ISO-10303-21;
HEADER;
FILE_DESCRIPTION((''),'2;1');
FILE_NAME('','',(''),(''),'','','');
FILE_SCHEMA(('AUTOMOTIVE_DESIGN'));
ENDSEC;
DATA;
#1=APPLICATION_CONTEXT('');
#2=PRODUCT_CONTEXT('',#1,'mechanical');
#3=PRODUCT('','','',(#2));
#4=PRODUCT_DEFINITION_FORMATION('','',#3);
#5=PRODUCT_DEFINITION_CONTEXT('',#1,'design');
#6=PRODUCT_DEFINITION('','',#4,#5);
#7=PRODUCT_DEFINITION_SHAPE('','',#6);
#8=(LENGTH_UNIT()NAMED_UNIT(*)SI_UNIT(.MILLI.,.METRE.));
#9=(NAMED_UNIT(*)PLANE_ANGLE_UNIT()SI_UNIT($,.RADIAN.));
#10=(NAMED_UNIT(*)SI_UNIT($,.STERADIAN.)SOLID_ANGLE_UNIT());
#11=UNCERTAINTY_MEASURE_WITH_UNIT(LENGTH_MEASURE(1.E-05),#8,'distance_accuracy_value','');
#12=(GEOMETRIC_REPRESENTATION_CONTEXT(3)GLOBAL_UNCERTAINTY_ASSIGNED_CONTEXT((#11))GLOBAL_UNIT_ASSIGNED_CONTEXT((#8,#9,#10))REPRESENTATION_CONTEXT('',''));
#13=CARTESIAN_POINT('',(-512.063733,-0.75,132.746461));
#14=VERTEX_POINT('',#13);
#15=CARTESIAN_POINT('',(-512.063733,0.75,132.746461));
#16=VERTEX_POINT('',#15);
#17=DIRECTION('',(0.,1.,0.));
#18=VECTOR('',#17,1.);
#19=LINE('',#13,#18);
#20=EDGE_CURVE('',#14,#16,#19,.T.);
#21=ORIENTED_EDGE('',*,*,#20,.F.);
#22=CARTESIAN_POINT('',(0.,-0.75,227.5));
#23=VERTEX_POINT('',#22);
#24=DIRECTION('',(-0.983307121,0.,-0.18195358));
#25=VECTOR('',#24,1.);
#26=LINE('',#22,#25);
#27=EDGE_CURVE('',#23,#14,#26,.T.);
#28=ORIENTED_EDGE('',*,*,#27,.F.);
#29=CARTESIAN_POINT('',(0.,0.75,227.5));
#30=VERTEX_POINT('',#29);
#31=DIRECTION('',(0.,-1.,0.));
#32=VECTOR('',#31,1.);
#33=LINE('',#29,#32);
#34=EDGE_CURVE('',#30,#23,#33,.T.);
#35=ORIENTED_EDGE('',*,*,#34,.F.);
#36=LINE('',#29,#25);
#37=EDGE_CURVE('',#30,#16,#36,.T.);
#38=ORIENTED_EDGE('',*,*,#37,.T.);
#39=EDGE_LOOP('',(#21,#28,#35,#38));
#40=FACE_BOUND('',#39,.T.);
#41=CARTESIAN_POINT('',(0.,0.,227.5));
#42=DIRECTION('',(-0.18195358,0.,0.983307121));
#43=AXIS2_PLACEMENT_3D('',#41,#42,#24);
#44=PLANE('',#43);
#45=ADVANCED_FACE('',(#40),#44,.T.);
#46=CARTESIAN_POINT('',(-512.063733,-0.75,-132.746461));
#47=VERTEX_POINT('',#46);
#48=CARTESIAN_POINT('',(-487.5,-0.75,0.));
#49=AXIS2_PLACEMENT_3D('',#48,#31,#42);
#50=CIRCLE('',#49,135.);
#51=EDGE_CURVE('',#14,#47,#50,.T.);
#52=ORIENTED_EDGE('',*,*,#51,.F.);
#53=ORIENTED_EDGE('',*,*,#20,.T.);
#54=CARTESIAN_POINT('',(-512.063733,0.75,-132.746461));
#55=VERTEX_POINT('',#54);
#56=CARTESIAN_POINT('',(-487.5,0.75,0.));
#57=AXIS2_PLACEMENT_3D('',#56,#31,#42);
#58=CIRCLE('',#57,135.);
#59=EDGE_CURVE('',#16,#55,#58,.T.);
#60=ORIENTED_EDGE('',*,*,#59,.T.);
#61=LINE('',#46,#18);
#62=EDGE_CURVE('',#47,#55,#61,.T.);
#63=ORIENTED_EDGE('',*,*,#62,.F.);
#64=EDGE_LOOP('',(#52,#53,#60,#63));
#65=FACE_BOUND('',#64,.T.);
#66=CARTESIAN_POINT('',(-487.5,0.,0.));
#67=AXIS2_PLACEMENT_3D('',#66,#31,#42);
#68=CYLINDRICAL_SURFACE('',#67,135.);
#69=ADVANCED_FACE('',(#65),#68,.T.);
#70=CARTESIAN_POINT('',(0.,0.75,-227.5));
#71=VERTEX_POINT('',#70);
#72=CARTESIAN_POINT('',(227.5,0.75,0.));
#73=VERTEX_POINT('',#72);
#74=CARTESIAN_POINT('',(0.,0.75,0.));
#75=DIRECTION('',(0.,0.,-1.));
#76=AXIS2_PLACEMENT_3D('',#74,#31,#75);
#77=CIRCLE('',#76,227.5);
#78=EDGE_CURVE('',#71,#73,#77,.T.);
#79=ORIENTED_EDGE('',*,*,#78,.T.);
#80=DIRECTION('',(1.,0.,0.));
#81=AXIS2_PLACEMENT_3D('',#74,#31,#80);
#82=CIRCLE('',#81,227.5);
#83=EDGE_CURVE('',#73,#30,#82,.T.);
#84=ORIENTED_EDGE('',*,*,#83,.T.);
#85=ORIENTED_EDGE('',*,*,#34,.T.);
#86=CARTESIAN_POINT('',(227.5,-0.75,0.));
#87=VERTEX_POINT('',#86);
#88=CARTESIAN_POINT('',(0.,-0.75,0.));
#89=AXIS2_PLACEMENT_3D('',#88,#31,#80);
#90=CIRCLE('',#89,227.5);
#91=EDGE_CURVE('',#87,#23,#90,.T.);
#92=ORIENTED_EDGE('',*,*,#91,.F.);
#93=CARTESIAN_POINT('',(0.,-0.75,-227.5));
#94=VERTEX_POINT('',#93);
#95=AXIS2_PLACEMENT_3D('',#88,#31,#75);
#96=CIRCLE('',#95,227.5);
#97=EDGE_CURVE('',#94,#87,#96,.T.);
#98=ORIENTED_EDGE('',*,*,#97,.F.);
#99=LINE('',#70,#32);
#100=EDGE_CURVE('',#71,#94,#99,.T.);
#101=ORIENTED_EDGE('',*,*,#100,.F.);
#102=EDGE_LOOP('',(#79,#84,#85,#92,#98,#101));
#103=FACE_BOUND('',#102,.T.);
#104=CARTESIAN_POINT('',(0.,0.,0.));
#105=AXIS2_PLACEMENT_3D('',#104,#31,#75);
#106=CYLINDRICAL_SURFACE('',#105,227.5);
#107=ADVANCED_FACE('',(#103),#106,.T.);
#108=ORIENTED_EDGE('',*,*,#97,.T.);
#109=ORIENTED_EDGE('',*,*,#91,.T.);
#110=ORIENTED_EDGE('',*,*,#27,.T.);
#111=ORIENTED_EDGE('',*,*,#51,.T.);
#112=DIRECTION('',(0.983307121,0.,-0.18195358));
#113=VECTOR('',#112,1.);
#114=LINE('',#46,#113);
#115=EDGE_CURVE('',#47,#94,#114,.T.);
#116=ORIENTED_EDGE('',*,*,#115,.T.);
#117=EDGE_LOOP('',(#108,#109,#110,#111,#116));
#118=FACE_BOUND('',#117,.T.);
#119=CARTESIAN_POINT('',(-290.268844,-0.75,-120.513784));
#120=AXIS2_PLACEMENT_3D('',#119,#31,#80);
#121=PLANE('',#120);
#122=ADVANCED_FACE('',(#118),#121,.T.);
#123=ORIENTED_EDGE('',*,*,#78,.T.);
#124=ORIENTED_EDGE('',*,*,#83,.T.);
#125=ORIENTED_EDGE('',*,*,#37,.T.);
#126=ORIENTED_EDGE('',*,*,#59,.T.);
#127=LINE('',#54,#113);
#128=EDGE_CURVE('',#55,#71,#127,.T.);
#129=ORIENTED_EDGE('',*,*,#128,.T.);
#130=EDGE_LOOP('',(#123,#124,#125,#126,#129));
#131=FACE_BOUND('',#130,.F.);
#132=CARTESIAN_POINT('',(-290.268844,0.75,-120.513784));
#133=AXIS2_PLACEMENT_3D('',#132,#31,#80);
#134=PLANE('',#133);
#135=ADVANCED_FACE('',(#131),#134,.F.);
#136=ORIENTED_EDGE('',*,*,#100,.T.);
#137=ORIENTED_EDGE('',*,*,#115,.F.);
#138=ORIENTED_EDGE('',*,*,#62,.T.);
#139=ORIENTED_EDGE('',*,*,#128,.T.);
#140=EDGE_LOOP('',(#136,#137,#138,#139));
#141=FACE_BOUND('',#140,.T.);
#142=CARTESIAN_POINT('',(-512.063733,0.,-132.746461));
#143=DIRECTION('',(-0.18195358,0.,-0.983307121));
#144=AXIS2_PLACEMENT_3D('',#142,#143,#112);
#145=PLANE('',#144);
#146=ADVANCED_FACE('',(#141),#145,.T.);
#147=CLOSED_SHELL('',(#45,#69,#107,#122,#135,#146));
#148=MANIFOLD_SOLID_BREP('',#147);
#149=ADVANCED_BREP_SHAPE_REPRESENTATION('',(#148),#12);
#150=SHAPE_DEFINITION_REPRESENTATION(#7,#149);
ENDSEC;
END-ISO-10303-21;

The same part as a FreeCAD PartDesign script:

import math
import FreeCAD as App
import Part
import Sketcher

V = App.Vector
Q = App.Units.Quantity

doc = App.newDocument("Part")
body = doc.addObject("PartDesign::Body", "Body")

# Sketch on XZ plane
sketch1 = body.newObject("Sketcher::SketchObject", "Sketch")
sketch1.AttachmentSupport = (doc.getObject("XZ_Plane"), [""])
sketch1.MapMode = "FlatFace"
sketch1.addGeometry([
    Part.LineSegment(V(-512.063733, -132.746461, 0), V(0, -227.5, 0)),  # 0
    Part.ArcOfCircle(Part.Circle(V(0, 0, 0), V(0, 0, 1), 227.5), math.radians(-90), math.radians(0)),  # 1
    Part.ArcOfCircle(Part.Circle(V(0, 0, 0), V(0, 0, 1), 227.5), math.radians(0), math.radians(90)),  # 2
    Part.LineSegment(V(0, 227.5, 0), V(-512.063733, 132.746461, 0)),  # 3
    Part.ArcOfCircle(Part.Circle(V(-487.5, 0, 0), V(0, 0, 1), 135), math.radians(100.483571), math.radians(259.516429)),  # 4
], False)
sketch1.addConstraint([
    Sketcher.Constraint("Coincident", 0, 2, 1, 1),
    Sketcher.Constraint("Tangent", 1, 2, 2, 1),
    Sketcher.Constraint("Coincident", 2, 2, 3, 1),
    Sketcher.Constraint("Tangent", 3, 2, 4, 1),
    Sketcher.Constraint("Tangent", 4, 2, 0, 1),
    Sketcher.Constraint("Coincident", 1, 3, -1, 1),
    Sketcher.Constraint("Equal", 1, 2),
    Sketcher.Constraint("Symmetric", 3, 2, 4, 2, -1),
    Sketcher.Constraint("PointOnObject", 0, 2, -2),
    Sketcher.Constraint("PointOnObject", 1, 2, -1),
    Sketcher.Constraint("Radius", 4, Q("135 mm")),
    Sketcher.Constraint("Radius", 1, Q("227.5 mm")),
    Sketcher.Constraint("DistanceX", 4, 3, 1, 2, Q("715 mm")),
])
pad1 = body.newObject("PartDesign::Pad", "Pad")
pad1.Profile = sketch1
pad1.Length = 1.5
pad1.Midplane = True

doc.recompute()
